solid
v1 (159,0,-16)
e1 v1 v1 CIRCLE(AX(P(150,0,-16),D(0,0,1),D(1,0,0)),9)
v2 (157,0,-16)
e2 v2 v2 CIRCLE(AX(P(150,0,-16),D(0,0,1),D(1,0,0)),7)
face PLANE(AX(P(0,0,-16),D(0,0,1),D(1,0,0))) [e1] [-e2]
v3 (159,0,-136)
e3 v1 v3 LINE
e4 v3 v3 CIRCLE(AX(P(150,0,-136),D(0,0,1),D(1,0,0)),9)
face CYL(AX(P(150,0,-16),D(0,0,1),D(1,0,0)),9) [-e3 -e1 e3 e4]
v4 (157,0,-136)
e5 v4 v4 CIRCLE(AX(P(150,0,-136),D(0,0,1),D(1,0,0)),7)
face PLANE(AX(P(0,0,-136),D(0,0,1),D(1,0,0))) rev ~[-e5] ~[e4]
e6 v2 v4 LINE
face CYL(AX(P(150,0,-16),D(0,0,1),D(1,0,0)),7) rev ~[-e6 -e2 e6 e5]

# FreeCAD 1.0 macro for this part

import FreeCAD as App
import Part
import Sketcher
Q = App.Units.Quantity


def faces_at(feature, points):
    """Names of the faces that lie closest to the given points."""
    faces = feature.Shape.Faces
    near = lambda p: min(range(len(faces)), key=lambda i: faces[i].distToShape(Part.Vertex(*p))[0])
    return sorted({f"Face{near(p) + 1}" for p in points})

doc = App.newDocument("Part")
body = doc.addObject("PartDesign::Body", "Body")

sketch1 = doc.addObject("Sketcher::SketchObject", "Sketch")
body.addObject(sketch1)
sketch1.AttachmentSupport = (doc.XY_Plane, [""])
sketch1.MapMode = "FlatFace"
sketch1.AttachmentOffset = App.Placement(App.Vector(0, 0, -16), App.Rotation())
sketch1.addGeometry(Part.Circle(App.Vector(150, 0, 0), App.Vector(0, 0, 1), 9), False)
sketch1.addConstraint([
    Sketcher.Constraint("PointOnObject", 0, 3, -1),
    Sketcher.Constraint("Diameter", 0, Q("18 mm")),
    Sketcher.Constraint("DistanceX", -1, 1, 0, 3, Q("150 mm")),
])
pad1 = doc.addObject("PartDesign::Pad", "Pad")
body.addObject(pad1)
pad1.Profile = sketch1
pad1.Length = 120
pad1.Reversed = True
doc.recompute()

thickness = doc.addObject("PartDesign::Thickness", "Thickness")
body.addObject(thickness)
thickness.Base = (pad1, faces_at(pad1, [(149.638, 2.632, -16), (149.638, 2.632, -136)]))
thickness.Value = 2
thickness.Reversed = True
thickness.Join = "Intersection"

doc.recompute()
